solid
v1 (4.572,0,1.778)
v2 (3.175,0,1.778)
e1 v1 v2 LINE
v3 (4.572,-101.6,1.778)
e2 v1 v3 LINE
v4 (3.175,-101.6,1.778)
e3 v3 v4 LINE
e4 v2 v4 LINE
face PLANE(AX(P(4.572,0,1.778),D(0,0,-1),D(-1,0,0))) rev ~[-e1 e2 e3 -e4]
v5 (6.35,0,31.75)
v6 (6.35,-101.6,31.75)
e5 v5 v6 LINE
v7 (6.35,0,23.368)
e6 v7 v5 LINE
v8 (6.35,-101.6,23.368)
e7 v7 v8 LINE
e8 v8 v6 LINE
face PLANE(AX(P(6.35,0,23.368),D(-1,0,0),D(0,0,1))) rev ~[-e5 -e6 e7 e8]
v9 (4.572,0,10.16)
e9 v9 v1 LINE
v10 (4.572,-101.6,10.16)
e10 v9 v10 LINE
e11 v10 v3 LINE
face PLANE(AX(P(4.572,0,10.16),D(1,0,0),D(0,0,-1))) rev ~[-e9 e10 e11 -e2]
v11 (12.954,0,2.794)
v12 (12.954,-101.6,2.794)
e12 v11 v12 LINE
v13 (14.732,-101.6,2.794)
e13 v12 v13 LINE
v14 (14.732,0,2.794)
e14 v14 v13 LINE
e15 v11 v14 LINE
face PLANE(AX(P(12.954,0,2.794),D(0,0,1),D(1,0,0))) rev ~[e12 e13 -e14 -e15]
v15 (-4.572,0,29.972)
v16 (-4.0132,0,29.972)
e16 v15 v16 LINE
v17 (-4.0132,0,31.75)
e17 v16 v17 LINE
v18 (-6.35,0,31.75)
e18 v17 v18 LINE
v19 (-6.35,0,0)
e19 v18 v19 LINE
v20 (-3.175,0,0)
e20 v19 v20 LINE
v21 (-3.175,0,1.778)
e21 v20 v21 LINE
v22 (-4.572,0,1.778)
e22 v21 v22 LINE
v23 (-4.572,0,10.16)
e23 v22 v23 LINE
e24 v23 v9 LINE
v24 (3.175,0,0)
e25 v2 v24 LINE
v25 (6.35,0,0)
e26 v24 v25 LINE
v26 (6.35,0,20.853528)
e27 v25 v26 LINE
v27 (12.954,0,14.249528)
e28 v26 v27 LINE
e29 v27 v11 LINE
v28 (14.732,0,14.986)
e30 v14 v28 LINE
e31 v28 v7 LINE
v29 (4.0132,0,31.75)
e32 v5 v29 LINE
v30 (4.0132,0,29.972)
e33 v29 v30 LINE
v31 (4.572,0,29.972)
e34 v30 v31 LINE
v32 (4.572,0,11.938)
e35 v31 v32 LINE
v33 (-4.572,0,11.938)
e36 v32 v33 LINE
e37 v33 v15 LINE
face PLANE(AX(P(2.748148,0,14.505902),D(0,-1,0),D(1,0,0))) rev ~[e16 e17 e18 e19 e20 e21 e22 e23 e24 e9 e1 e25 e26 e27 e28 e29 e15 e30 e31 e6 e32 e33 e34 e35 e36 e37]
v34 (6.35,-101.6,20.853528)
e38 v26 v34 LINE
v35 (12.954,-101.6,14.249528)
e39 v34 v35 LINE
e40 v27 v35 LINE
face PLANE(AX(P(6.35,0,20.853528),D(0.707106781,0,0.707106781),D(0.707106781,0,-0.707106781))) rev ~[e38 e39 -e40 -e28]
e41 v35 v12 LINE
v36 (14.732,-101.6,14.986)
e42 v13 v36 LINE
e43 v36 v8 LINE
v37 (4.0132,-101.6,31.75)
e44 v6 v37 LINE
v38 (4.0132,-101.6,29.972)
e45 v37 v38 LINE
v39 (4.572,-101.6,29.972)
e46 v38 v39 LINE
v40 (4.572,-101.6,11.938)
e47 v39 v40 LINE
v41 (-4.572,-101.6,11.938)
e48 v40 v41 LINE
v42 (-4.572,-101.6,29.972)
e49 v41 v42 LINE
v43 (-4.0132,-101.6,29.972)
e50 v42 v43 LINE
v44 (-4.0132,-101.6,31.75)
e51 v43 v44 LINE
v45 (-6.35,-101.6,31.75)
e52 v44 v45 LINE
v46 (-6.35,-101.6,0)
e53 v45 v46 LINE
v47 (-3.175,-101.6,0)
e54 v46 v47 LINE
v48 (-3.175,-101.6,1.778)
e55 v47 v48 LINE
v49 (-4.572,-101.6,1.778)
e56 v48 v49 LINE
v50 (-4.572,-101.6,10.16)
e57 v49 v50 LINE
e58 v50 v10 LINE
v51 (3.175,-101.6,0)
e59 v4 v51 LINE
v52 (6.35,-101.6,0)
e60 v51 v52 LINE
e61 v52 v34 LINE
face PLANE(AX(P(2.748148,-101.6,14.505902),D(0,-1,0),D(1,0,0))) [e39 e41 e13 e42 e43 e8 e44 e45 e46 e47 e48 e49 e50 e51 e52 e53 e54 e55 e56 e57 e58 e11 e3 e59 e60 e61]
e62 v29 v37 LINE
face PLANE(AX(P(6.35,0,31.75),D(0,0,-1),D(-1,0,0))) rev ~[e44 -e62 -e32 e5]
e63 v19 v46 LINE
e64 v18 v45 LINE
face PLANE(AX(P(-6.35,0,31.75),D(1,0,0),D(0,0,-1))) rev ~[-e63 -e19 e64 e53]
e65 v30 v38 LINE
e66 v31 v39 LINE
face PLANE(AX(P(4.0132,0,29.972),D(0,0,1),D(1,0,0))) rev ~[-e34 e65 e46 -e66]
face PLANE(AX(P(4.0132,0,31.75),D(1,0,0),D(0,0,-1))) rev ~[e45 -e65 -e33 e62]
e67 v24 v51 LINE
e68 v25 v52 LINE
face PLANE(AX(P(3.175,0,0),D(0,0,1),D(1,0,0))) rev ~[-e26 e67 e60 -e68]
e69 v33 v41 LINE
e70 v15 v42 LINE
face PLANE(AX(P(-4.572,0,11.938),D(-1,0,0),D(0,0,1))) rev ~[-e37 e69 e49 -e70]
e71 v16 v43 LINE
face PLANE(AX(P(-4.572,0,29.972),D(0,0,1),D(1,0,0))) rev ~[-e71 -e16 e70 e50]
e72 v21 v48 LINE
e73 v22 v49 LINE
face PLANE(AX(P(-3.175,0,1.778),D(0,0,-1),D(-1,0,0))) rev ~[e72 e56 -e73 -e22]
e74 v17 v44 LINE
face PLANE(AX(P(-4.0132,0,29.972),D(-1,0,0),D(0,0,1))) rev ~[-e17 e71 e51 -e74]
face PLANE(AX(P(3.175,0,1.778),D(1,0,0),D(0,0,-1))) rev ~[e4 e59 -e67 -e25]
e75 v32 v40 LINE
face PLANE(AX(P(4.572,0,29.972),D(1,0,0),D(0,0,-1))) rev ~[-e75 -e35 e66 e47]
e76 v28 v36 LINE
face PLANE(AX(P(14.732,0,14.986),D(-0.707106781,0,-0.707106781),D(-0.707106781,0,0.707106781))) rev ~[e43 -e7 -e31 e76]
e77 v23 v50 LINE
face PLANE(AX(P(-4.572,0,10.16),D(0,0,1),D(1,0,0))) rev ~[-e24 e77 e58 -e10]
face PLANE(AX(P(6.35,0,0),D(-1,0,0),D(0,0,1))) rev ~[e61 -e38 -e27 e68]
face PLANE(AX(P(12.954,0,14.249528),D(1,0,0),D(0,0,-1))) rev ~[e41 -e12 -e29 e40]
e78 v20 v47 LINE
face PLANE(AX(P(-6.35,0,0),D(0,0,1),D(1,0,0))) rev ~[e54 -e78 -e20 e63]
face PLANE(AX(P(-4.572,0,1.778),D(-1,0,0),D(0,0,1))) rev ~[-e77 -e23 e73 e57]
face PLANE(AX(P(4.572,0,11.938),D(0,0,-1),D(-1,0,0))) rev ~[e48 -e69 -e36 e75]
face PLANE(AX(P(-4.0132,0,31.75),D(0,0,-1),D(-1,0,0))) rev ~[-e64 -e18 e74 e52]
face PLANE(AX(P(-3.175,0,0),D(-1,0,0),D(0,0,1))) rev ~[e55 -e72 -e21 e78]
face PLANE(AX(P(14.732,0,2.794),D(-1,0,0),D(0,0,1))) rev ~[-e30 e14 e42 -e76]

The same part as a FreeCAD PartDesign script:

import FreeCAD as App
import Part
import Sketcher

V = App.Vector
Q = App.Units.Quantity


def add_polygon(sketch, points):
    """Adds a closed chain of lines whose ends are joined by coincident constraints."""
    first, n = sketch.GeometryCount, len(points)
    for a, b in zip(points, points[1:] + points[:1]):
        sketch.addGeometry(Part.LineSegment(App.Vector(*a, 0), App.Vector(*b, 0)), False)
    for i in range(n):
        sketch.addConstraint(Sketcher.Constraint("Coincident", first + i, 2, first + (i + 1) % n, 1))

doc = App.newDocument("Part")
body = doc.addObject("PartDesign::Body", "Body")

sketch1 = body.newObject("Sketcher::SketchObject", "Sketch")
sketch1.AttachmentSupport = (doc.getObject("XZ_Plane"), [""])
sketch1.MapMode = "FlatFace"
add_polygon(sketch1, [(-4, 30), (-4, 31.8), (-6.3, 31.8), (-6.3, 0), (-3.2, 0), (-3.2, 1.8), (-4.6, 1.8), (-4.6, 10.2), (4.6, 10.2), (4.6, 1.8), (3.2, 1.8), (3.2, 0), (6.3, 0), (6.3, 20.9), (13, 14.2), (13, 2.8), (14.7, 2.8), (14.7, 15), (6.3, 23.4), (6.3, 31.8), (4, 31.8), (4, 30), (4.6, 30), (4.6, 11.9), (-4.6, 11.9), (-4.6, 30)])
sketch1.addConstraint([
    Sketcher.Constraint("Vertical", 0),
    Sketcher.Constraint("Horizontal", 1),
    Sketcher.Constraint("Vertical", 2),
    Sketcher.Constraint("Horizontal", 3),
    Sketcher.Constraint("Vertical", 4),
    Sketcher.Constraint("Horizontal", 5),
    Sketcher.Constraint("Vertical", 6),
    Sketcher.Constraint("Horizontal", 7),
    Sketcher.Constraint("Vertical", 8),
    Sketcher.Constraint("Horizontal", 9),
    Sketcher.Constraint("Vertical", 10),
    Sketcher.Constraint("Horizontal", 11),
    Sketcher.Constraint("Vertical", 12),
    Sketcher.Constraint("Vertical", 14),
    Sketcher.Constraint("Horizontal", 15),
    Sketcher.Constraint("Vertical", 16),
    Sketcher.Constraint("Vertical", 18),
    Sketcher.Constraint("Horizontal", 19),
    Sketcher.Constraint("Vertical", 20),
    Sketcher.Constraint("Horizontal", 21),
    Sketcher.Constraint("Vertical", 22),
    Sketcher.Constraint("Horizontal", 23),
    Sketcher.Constraint("Vertical", 24),
    Sketcher.Constraint("Horizontal", 25),
    Sketcher.Constraint("Symmetric", 3, 2, 10, 2, -1, 1),
    Sketcher.Constraint("Symmetric", 5, 2, 8, 2, -2),
    Sketcher.Constraint("Symmetric", 2, 2, 11, 2, -2),
    Sketcher.Constraint("Symmetric", 1, 2, 18, 2, -2),
    Sketcher.Constraint("Symmetric", 21, 2, 24, 2, -2),
    Sketcher.Constraint("Parallel", 13, 17),
    Sketcher.Constraint("Vertical", 8, 2, 21, 2),
    Sketcher.Constraint("Equal", 1, 19),
    Sketcher.Constraint("Equal", 15, 0),
    Sketcher.Constraint("Equal", 0, 4),
    Sketcher.Constraint("Equal", 8, 18),
    Sketcher.Constraint("Angle", 13, Q("-45 deg")),
    Sketcher.Constraint("DistanceX", 7, 1, 7, 2, Q("0.36 in")),
    Sketcher.Constraint("DistanceX", 15, 1, 15, 2, Q("0.07 in")),
    Sketcher.Constraint("DistanceY", 2, 2, 2, 1, Q("1.25 in")),
    Sketcher.Constraint("DistanceY", 6, 1, 6, 2, Q("0.33 in")),
    Sketcher.Constraint("DistanceY", 16, 1, 16, 2, Q("0.48 in")),
    Sketcher.Constraint("DistanceY", 22, 2, 22, 1, Q("0.71 in")),
    Sketcher.Constraint("DistanceX", 1, 2, 12, 2, Q("0.5 in")),
    Sketcher.Constraint("DistanceX", 8, 2, 15, 2, Q("0.4 in")),
    Sketcher.Constraint("DistanceX", 1, 2, 1, 1, Q("0.092 in")),
    Sketcher.Constraint("DistanceX", 3, 1, 3, 2, Q("0.125 in")),
    Sketcher.Constraint("DistanceY", 12, 1, 12, 2, 20.853528),
])
pad1 = body.newObject("PartDesign::Pad", "Pad")
pad1.Profile = sketch1
pad1.Length = Q("4 in")

doc.recompute()
